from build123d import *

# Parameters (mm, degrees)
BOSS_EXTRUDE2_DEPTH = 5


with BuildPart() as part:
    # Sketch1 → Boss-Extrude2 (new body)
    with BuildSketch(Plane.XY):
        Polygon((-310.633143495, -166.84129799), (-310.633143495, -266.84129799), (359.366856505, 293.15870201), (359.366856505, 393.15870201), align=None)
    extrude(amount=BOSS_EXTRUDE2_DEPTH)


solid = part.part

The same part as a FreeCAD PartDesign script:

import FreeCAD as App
import Part
import Sketcher

V = App.Vector
Q = App.Units.Quantity


def add_polygon(sketch, points):
    """Adds a closed chain of lines whose ends are joined by coincident constraints."""
    first, n = sketch.GeometryCount, len(points)
    for a, b in zip(points, points[1:] + points[:1]):
        sketch.addGeometry(Part.LineSegment(App.Vector(*a, 0), App.Vector(*b, 0)), False)
    for i in range(n):
        sketch.addConstraint(Sketcher.Constraint("Coincident", first + i, 2, first + (i + 1) % n, 1))

doc = App.newDocument("Part")
body = doc.addObject("PartDesign::Body", "Body")

sketch1 = doc.addObject("Sketcher::SketchObject", "Sketch")
body.addObject(sketch1)
sketch1.AttachmentSupport = (doc.XY_Plane, [""])
sketch1.MapMode = "FlatFace"
add_polygon(sketch1, [(-311, -167), (-311, -267), (359, 293), (359, 393)])
sketch1.addConstraint(Sketcher.Constraint("Vertical", 0))
sketch1.addConstraint(Sketcher.Constraint("Vertical", 2))
sketch1.addConstraint(Sketcher.Constraint("Parallel", 1, 3))
sketch1.addConstraint(Sketcher.Constraint("DistanceY", 0, 2, 0, 1, Q("100 mm")))
sketch1.addConstraint(Sketcher.Constraint("DistanceX", 0, 2, 1, 2, Q("670 mm")))
sketch1.addConstraint(Sketcher.Constraint("DistanceY", 0, 2, 1, 2, Q("560 mm")))
sketch1.addConstraint(Sketcher.Constraint("DistanceX", 0, 2, -1, 1, Q("310.633143 mm")))
sketch1.addConstraint(Sketcher.Constraint("DistanceY", 0, 2, -1, 1, Q("266.841298 mm")))
pad1 = doc.addObject("PartDesign::Pad", "Pad")
body.addObject(pad1)
pad1.Profile = sketch1
pad1.Length = 5

doc.recompute()
